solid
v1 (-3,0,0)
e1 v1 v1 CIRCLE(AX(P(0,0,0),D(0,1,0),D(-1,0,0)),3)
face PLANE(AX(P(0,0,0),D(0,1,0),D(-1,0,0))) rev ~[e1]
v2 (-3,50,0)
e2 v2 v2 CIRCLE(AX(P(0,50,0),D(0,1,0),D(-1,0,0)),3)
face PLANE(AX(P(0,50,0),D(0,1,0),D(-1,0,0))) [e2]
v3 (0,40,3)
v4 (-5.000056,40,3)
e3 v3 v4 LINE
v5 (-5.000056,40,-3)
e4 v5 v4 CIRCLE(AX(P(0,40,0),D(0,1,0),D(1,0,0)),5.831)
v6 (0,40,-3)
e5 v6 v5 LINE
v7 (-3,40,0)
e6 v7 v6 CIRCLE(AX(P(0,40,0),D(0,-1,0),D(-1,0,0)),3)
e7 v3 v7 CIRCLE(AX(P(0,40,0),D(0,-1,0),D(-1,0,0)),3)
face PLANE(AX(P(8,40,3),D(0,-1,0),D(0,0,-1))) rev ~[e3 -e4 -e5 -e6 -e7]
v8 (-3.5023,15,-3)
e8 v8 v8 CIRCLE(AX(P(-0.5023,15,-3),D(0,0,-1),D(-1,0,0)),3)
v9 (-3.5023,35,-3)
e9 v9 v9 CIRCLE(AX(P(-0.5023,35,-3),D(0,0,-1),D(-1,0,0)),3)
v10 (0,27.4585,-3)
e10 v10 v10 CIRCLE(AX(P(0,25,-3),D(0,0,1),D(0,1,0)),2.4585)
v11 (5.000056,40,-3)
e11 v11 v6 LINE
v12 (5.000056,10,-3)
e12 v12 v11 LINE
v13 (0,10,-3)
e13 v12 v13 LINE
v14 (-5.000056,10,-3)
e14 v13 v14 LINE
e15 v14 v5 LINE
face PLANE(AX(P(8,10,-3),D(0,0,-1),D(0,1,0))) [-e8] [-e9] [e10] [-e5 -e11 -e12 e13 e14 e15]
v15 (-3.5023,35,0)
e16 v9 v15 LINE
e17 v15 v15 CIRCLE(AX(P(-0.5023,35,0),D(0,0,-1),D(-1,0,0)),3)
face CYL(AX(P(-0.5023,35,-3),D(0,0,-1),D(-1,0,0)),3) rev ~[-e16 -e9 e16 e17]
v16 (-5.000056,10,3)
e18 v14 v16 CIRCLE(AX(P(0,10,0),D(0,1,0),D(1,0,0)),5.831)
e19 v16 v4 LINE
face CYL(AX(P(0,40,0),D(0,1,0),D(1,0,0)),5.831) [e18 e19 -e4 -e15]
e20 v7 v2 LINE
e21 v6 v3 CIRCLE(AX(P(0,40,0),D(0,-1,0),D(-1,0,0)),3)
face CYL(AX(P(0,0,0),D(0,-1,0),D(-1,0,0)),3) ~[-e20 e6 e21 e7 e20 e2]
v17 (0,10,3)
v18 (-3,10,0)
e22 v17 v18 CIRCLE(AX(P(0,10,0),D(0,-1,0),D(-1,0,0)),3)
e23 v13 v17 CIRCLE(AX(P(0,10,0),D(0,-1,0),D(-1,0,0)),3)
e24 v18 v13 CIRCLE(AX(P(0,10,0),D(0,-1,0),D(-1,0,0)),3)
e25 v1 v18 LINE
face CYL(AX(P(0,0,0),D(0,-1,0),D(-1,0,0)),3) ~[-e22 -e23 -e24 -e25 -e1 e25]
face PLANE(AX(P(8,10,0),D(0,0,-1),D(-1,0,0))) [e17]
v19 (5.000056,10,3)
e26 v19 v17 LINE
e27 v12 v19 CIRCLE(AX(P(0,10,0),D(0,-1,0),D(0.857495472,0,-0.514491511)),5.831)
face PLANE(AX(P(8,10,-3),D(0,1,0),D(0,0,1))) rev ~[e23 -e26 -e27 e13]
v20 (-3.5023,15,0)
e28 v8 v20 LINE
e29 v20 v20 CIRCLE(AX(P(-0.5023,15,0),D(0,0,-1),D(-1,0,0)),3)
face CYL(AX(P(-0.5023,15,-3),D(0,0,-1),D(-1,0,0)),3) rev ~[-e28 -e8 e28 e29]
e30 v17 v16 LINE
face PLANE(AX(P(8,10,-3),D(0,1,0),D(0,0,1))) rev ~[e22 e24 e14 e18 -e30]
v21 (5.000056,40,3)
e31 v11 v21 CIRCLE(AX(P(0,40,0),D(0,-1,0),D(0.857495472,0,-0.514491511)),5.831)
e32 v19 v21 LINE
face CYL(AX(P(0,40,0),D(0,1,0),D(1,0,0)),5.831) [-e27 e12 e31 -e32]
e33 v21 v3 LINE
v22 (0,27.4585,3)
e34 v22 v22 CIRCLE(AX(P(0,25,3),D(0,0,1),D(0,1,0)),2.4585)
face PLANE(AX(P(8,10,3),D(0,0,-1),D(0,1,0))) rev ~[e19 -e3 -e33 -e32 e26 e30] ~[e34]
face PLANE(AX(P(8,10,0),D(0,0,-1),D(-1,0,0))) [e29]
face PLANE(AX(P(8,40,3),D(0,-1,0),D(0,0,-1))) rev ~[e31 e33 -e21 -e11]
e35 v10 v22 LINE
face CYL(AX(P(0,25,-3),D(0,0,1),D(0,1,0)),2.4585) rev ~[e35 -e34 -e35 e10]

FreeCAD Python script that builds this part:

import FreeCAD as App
import Part
import Sketcher
from FreeCAD import Vector

doc = App.newDocument("Part")
params = doc.addObject("Spreadsheet::Sheet", "Params")
for row, (alias, value) in enumerate([
    ("sketch1_diameter", "6 mm"),
    ("pad1_length", "50 mm"),
    ("sketch2_width", "30 mm"),
    ("sketch2_height", "6 mm"),
    ("pad2_length", "14 mm"),
    ("sketch3_diameter", "6 mm"),
    ("pocket1_length", "3 mm"),
    ("hole_diameter", "4.917 mm"),
    ("sketch5_diameter", "20 mm"),
    ("pocket2_length", "40 mm"),
], start=1):
    params.set(f"A{row}", alias)
    params.set(f"B{row}", "=" + value)
    params.setAlias(f"B{row}", alias)

body = doc.addObject("PartDesign::Body", "Body")

sketch1 = body.newObject("Sketcher::SketchObject", "Sketch")
sketch1.AttachmentSupport = (doc.getObject("XZ_Plane"), [""])
sketch1.MapMode = "FlatFace"
sketch1.addGeometry(Part.Circle(Vector(0, 0, 0), Vector(0, 0, 1), 3), False)
sketch1.addConstraint([
    Sketcher.Constraint("Coincident", 0, 3, -1, 1),
    Sketcher.Constraint("Diameter", 0, 6.0),
])
sketch1.setExpression("Constraints[1]", "Params.sketch1_diameter")
pad1 = body.newObject("PartDesign::Pad", "Pad")
pad1.Profile = sketch1
pad1.setExpression("Length", "Params.pad1_length")
pad1.Reversed = True

sketch2 = body.newObject("Sketcher::SketchObject", "Sketch001")
sketch2.AttachmentSupport = (doc.getObject("YZ_Plane"), [""])
sketch2.MapMode = "FlatFace"
sketch2.AttachmentOffset = App.Placement(Vector(0, 0, 8), App.Rotation())
sketch2.addGeometry([
    Part.LineSegment(Vector(10, 3, 0), Vector(10, -3, 0)),
    Part.LineSegment(Vector(10, -3, 0), Vector(40, -3, 0)),
    Part.LineSegment(Vector(40, -3, 0), Vector(40, 3, 0)),
    Part.LineSegment(Vector(40, 3, 0), Vector(10, 3, 0)),
], False)
sketch2.addConstraint([
    Sketcher.Constraint("Coincident", 0, 2, 1, 1),
    Sketcher.Constraint("Coincident", 1, 2, 2, 1),
    Sketcher.Constraint("Coincident", 2, 2, 3, 1),
    Sketcher.Constraint("Coincident", 3, 2, 0, 1),
    Sketcher.Constraint("Vertical", 0),
    Sketcher.Constraint("Horizontal", 1),
    Sketcher.Constraint("Vertical", 2),
    Sketcher.Constraint("Horizontal", 3),
    Sketcher.Constraint("DistanceX", 1, 1, 1, 2, 30.0),
    Sketcher.Constraint("DistanceX", -1, 1, 0, 2, 10.0),
    Sketcher.Constraint("DistanceY", 0, 2, 0, 1, 6.0),
    Sketcher.Constraint("DistanceY", 0, 2, -1, 1, 3.0),
])
sketch2.setExpression("Constraints[8]", "Params.sketch2_width")
sketch2.setExpression("Constraints[10]", "Params.sketch2_height")
pad2 = body.newObject("PartDesign::Pad", "Pad001")
pad2.Profile = sketch2
pad2.setExpression("Length", "Params.pad2_length")
pad2.Reversed = True

sketch3 = body.newObject("Sketcher::SketchObject", "Sketch002")
sketch3.AttachmentSupport = (doc.getObject("XY_Plane"), [""])
sketch3.MapMode = "FlatFace"
sketch3.AttachmentOffset = App.Placement(Vector(0, 0, -3), App.Rotation())
sketch3.addGeometry([
    Part.Circle(Vector(-0.5, 35, 0), Vector(0, 0, 1), 3),
    Part.Circle(Vector(-0.5, 15, 0), Vector(0, 0, 1), 3),
], False)
sketch3.addConstraint([
    Sketcher.Constraint("Equal", 0, 1),
    Sketcher.Constraint("Vertical", 0, 3, 1, 3),
    Sketcher.Constraint("Diameter", 0, 6.0),
    Sketcher.Constraint("DistanceY", -1, 1, 0, 3, 35.0),
    Sketcher.Constraint("DistanceY", -1, 1, 1, 3, 15.0),
    Sketcher.Constraint("DistanceX", 0, 3, -1, 1, 0.5023),
])
sketch3.setExpression("Constraints[2]", "Params.sketch3_diameter")
pocket1 = body.newObject("PartDesign::Pocket", "Pocket")
pocket1.Profile = sketch3
pocket1.setExpression("Length", "Params.pocket1_length")
pocket1.Reversed = True

sketch4 = body.newObject("Sketcher::SketchObject", "Sketch003")
sketch4.AttachmentSupport = (doc.getObject("XY_Plane"), [""])
sketch4.MapMode = "FlatFace"
sketch4.AttachmentOffset = App.Placement(Vector(0, 0, -3), App.Rotation())
sketch4.addGeometry(Part.Circle(Vector(0, 25, 0), Vector(0, 0, 1), 2.5), False)
sketch4.addConstraint([
    Sketcher.Constraint("PointOnObject", 0, 3, -2),
    Sketcher.Constraint("Diameter", 0, 4.917),
    Sketcher.Constraint("DistanceY", -1, 1, 0, 3, 25.0),
])
doc.recompute()
hole = body.newObject("PartDesign::Hole", "Hole")
hole.Profile = sketch4
hole.ThreadType = "None"
hole.setExpression("Diameter", "Params.hole_diameter")
hole.DepthType = "ThroughAll"
hole.Reversed = True

sketch5 = body.newObject("Sketcher::SketchObject", "Sketch004")
sketch5.AttachmentSupport = (doc.getObject("XZ_Plane"), [""])
sketch5.MapMode = "FlatFace"
sketch5.AttachmentOffset = App.Placement(Vector(0, 0, -40), App.Rotation())
sketch5.addGeometry([
    Part.Circle(Vector(0, 0, 0), Vector(0, 0, 1), 10),
    Part.Circle(Vector(0, 0, 0), Vector(0, 0, 1), 6),
], False)
sketch5.addConstraint([
    Sketcher.Constraint("Coincident", 0, 3, -1, 1),
    Sketcher.Constraint("Coincident", 1, 3, -1, 1),
    Sketcher.Constraint("Diameter", 0, 20.0),
    Sketcher.Constraint("Diameter", 1, 11.662),
])
sketch5.setExpression("Constraints[2]", "Params.sketch5_diameter")
pocket2 = body.newObject("PartDesign::Pocket", "Pocket001")
pocket2.Profile = sketch5
pocket2.setExpression("Length", "Params.pocket2_length")
pocket2.Reversed = True

doc.recompute()
